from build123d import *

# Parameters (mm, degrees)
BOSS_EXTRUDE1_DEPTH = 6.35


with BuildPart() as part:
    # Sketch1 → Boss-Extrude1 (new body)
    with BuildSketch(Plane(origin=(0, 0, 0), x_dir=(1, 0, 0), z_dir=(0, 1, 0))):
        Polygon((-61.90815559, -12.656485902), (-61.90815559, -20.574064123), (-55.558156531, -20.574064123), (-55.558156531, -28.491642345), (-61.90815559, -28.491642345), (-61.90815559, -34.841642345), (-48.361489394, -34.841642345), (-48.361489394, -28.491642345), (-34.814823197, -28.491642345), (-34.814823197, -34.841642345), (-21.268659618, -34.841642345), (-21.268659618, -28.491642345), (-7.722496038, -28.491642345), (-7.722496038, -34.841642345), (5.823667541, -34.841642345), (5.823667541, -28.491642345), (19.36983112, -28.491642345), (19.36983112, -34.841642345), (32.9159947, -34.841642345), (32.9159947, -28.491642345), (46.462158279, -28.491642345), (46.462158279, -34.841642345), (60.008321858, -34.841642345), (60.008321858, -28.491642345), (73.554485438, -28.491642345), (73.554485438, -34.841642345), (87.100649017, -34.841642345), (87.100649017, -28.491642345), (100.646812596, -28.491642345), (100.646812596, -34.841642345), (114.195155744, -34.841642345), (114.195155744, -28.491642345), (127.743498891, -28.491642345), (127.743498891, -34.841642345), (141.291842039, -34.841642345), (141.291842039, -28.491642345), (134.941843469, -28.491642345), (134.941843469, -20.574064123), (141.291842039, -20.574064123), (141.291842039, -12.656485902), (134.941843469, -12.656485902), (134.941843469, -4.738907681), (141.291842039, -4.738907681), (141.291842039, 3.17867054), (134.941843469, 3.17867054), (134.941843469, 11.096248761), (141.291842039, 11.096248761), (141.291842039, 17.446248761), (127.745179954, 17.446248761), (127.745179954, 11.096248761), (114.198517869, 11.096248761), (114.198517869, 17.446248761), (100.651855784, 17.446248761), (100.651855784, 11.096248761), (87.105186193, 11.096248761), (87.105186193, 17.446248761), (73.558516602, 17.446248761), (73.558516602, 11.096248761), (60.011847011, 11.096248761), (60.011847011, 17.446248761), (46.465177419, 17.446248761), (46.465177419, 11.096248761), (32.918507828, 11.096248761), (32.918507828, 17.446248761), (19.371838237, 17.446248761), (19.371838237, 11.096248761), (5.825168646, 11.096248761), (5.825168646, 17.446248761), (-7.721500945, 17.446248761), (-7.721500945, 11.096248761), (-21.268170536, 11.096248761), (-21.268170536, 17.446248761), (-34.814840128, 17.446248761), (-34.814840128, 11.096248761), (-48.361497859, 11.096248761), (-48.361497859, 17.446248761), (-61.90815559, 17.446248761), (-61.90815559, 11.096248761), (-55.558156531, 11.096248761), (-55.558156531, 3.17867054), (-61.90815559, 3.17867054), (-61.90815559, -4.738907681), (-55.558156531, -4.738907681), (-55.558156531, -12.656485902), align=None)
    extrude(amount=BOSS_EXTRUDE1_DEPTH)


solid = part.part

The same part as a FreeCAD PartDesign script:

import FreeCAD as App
import Part
import Sketcher
Q = App.Units.Quantity

doc = App.newDocument("Part")
body = doc.addObject("PartDesign::Body", "Body")

sketch1 = doc.addObject("Sketcher::SketchObject", "Sketch")
body.addObject(sketch1)
sketch1.AttachmentSupport = (doc.XZ_Plane, [""])
sketch1.MapMode = "FlatFace"
sketch1.addGeometry([
    Part.LineSegment(App.Vector(-62, 13, 0), App.Vector(-62, 21, 0)),
    Part.LineSegment(App.Vector(-62, 21, 0), App.Vector(-56, 21, 0)),
    Part.LineSegment(App.Vector(-56, 21, 0), App.Vector(-56, 28, 0)),
    Part.LineSegment(App.Vector(-56, 28, 0), App.Vector(-62, 28, 0)),
    Part.LineSegment(App.Vector(-62, 28, 0), App.Vector(-62, 35, 0)),
    Part.LineSegment(App.Vector(-62, 35, 0), App.Vector(-48, 35, 0)),
    Part.LineSegment(App.Vector(-48, 35, 0), App.Vector(-48, 28, 0)),
    Part.LineSegment(App.Vector(-48, 28, 0), App.Vector(-35, 28, 0)),
    Part.LineSegment(App.Vector(-35, 28, 0), App.Vector(-35, 35, 0)),
    Part.LineSegment(App.Vector(-35, 35, 0), App.Vector(-21, 35, 0)),
    Part.LineSegment(App.Vector(-21, 35, 0), App.Vector(-21, 28, 0)),
    Part.LineSegment(App.Vector(-21, 28, 0), App.Vector(-8, 28, 0)),
    Part.LineSegment(App.Vector(-8, 28, 0), App.Vector(-8, 35, 0)),
    Part.LineSegment(App.Vector(-8, 35, 0), App.Vector(6, 35, 0)),
    Part.LineSegment(App.Vector(6, 35, 0), App.Vector(6, 28, 0)),
    Part.LineSegment(App.Vector(6, 28, 0), App.Vector(19, 28, 0)),
    Part.LineSegment(App.Vector(19, 28, 0), App.Vector(19, 35, 0)),
    Part.LineSegment(App.Vector(19, 35, 0), App.Vector(33, 35, 0)),
    Part.LineSegment(App.Vector(33, 35, 0), App.Vector(33, 28, 0)),
    Part.LineSegment(App.Vector(33, 28, 0), App.Vector(46, 28, 0)),
    Part.LineSegment(App.Vector(46, 28, 0), App.Vector(46, 35, 0)),
    Part.LineSegment(App.Vector(46, 35, 0), App.Vector(60, 35, 0)),
    Part.LineSegment(App.Vector(60, 35, 0), App.Vector(60, 28, 0)),
    Part.LineSegment(App.Vector(60, 28, 0), App.Vector(74, 28, 0)),
    Part.LineSegment(App.Vector(74, 28, 0), App.Vector(74, 35, 0)),
    Part.LineSegment(App.Vector(74, 35, 0), App.Vector(87, 35, 0)),
    Part.LineSegment(App.Vector(87, 35, 0), App.Vector(87, 28, 0)),
    Part.LineSegment(App.Vector(87, 28, 0), App.Vector(101, 28, 0)),
    Part.LineSegment(App.Vector(101, 28, 0), App.Vector(101, 35, 0)),
    Part.LineSegment(App.Vector(101, 35, 0), App.Vector(114, 35, 0)),
    Part.LineSegment(App.Vector(114, 35, 0), App.Vector(114, 28, 0)),
    Part.LineSegment(App.Vector(114, 28, 0), App.Vector(128, 28, 0)),
    Part.LineSegment(App.Vector(128, 28, 0), App.Vector(128, 35, 0)),
    Part.LineSegment(App.Vector(128, 35, 0), App.Vector(141, 35, 0)),
    Part.LineSegment(App.Vector(141, 35, 0), App.Vector(141, 28, 0)),
    Part.LineSegment(App.Vector(141, 28, 0), App.Vector(135, 28, 0)),
    Part.LineSegment(App.Vector(135, 28, 0), App.Vector(135, 21, 0)),
    Part.LineSegment(App.Vector(135, 21, 0), App.Vector(141, 21, 0)),
    Part.LineSegment(App.Vector(141, 21, 0), App.Vector(141, 13, 0)),
    Part.LineSegment(App.Vector(141, 13, 0), App.Vector(135, 13, 0)),
    Part.LineSegment(App.Vector(135, 13, 0), App.Vector(135, 5, 0)),
    Part.LineSegment(App.Vector(135, 5, 0), App.Vector(141, 5, 0)),
    Part.LineSegment(App.Vector(141, 5, 0), App.Vector(141, -3, 0)),
    Part.LineSegment(App.Vector(141, -3, 0), App.Vector(135, -3, 0)),
    Part.LineSegment(App.Vector(135, -3, 0), App.Vector(135, -11, 0)),
    Part.LineSegment(App.Vector(135, -11, 0), App.Vector(141, -11, 0)),
    Part.LineSegment(App.Vector(141, -11, 0), App.Vector(141, -17, 0)),
    Part.LineSegment(App.Vector(141, -17, 0), App.Vector(128, -17, 0)),
    Part.LineSegment(App.Vector(128, -17, 0), App.Vector(128, -11, 0)),
    Part.LineSegment(App.Vector(128, -11, 0), App.Vector(114, -11, 0)),
    Part.LineSegment(App.Vector(114, -11, 0), App.Vector(114, -17, 0)),
    Part.LineSegment(App.Vector(114, -17, 0), App.Vector(101, -17, 0)),
    Part.LineSegment(App.Vector(101, -17, 0), App.Vector(101, -11, 0)),
    Part.LineSegment(App.Vector(101, -11, 0), App.Vector(87, -11, 0)),
    Part.LineSegment(App.Vector(87, -11, 0), App.Vector(87, -17, 0)),
    Part.LineSegment(App.Vector(87, -17, 0), App.Vector(74, -17, 0)),
    Part.LineSegment(App.Vector(74, -17, 0), App.Vector(74, -11, 0)),
    Part.LineSegment(App.Vector(74, -11, 0), App.Vector(60, -11, 0)),
    Part.LineSegment(App.Vector(60, -11, 0), App.Vector(60, -17, 0)),
    Part.LineSegment(App.Vector(60, -17, 0), App.Vector(46, -17, 0)),
    Part.LineSegment(App.Vector(46, -17, 0), App.Vector(46, -11, 0)),
    Part.LineSegment(App.Vector(46, -11, 0), App.Vector(33, -11, 0)),
    Part.LineSegment(App.Vector(33, -11, 0), App.Vector(33, -17, 0)),
    Part.LineSegment(App.Vector(33, -17, 0), App.Vector(19, -17, 0)),
    Part.LineSegment(App.Vector(19, -17, 0), App.Vector(19, -11, 0)),
    Part.LineSegment(App.Vector(19, -11, 0), App.Vector(6, -11, 0)),
    Part.LineSegment(App.Vector(6, -11, 0), App.Vector(6, -17, 0)),
    Part.LineSegment(App.Vector(6, -17, 0), App.Vector(-8, -17, 0)),
    Part.LineSegment(App.Vector(-8, -17, 0), App.Vector(-8, -11, 0)),
    Part.LineSegment(App.Vector(-8, -11, 0), App.Vector(-21, -11, 0)),
    Part.LineSegment(App.Vector(-21, -11, 0), App.Vector(-21, -17, 0)),
    Part.LineSegment(App.Vector(-21, -17, 0), App.Vector(-35, -17, 0)),
    Part.LineSegment(App.Vector(-35, -17, 0), App.Vector(-35, -11, 0)),
    Part.LineSegment(App.Vector(-35, -11, 0), App.Vector(-48, -11, 0)),
    Part.LineSegment(App.Vector(-48, -11, 0), App.Vector(-48, -17, 0)),
    Part.LineSegment(App.Vector(-48, -17, 0), App.Vector(-62, -17, 0)),
    Part.LineSegment(App.Vector(-62, -17, 0), App.Vector(-62, -11, 0)),
    Part.LineSegment(App.Vector(-62, -11, 0), App.Vector(-56, -11, 0)),
    Part.LineSegment(App.Vector(-56, -11, 0), App.Vector(-56, -3, 0)),
    Part.LineSegment(App.Vector(-56, -3, 0), App.Vector(-62, -3, 0)),
    Part.LineSegment(App.Vector(-62, -3, 0), App.Vector(-62, 5, 0)),
    Part.LineSegment(App.Vector(-62, 5, 0), App.Vector(-56, 5, 0)),
    Part.LineSegment(App.Vector(-56, 5, 0), App.Vector(-56, 13, 0)),
    Part.LineSegment(App.Vector(-56, 13, 0), App.Vector(-62, 13, 0)),
], False)
sketch1.addConstraint([
    Sketcher.Constraint("Coincident", 0, 2, 1, 1),
    Sketcher.Constraint("Coincident", 1, 2, 2, 1),
    Sketcher.Constraint("Coincident", 2, 2, 3, 1),
    Sketcher.Constraint("Coincident", 3, 2, 4, 1),
    Sketcher.Constraint("Coincident", 4, 2, 5, 1),
    Sketcher.Constraint("Coincident", 5, 2, 6, 1),
    Sketcher.Constraint("Coincident", 6, 2, 7, 1),
    Sketcher.Constraint("Coincident", 7, 2, 8, 1),
    Sketcher.Constraint("Coincident", 8, 2, 9, 1),
    Sketcher.Constraint("Coincident", 9, 2, 10, 1),
    Sketcher.Constraint("Coincident", 10, 2, 11, 1),
    Sketcher.Constraint("Coincident", 11, 2, 12, 1),
    Sketcher.Constraint("Coincident", 12, 2, 13, 1),
    Sketcher.Constraint("Coincident", 13, 2, 14, 1),
    Sketcher.Constraint("Coincident", 14, 2, 15, 1),
    Sketcher.Constraint("Coincident", 15, 2, 16, 1),
    Sketcher.Constraint("Coincident", 16, 2, 17, 1),
    Sketcher.Constraint("Coincident", 17, 2, 18, 1),
    Sketcher.Constraint("Coincident", 18, 2, 19, 1),
    Sketcher.Constraint("Coincident", 19, 2, 20, 1),
    Sketcher.Constraint("Coincident", 20, 2, 21, 1),
    Sketcher.Constraint("Coincident", 21, 2, 22, 1),
    Sketcher.Constraint("Coincident", 22, 2, 23, 1),
    Sketcher.Constraint("Coincident", 23, 2, 24, 1),
    Sketcher.Constraint("Coincident", 24, 2, 25, 1),
    Sketcher.Constraint("Coincident", 25, 2, 26, 1),
    Sketcher.Constraint("Coincident", 26, 2, 27, 1),
    Sketcher.Constraint("Coincident", 27, 2, 28, 1),
    Sketcher.Constraint("Coincident", 28, 2, 29, 1),
    Sketcher.Constraint("Coincident", 29, 2, 30, 1),
    Sketcher.Constraint("Coincident", 30, 2, 31, 1),
    Sketcher.Constraint("Coincident", 31, 2, 32, 1),
    Sketcher.Constraint("Coincident", 32, 2, 33, 1),
    Sketcher.Constraint("Coincident", 33, 2, 34, 1),
    Sketcher.Constraint("Coincident", 34, 2, 35, 1),
    Sketcher.Constraint("Coincident", 35, 2, 36, 1),
    Sketcher.Constraint("Coincident", 36, 2, 37, 1),
    Sketcher.Constraint("Coincident", 37, 2, 38, 1),
    Sketcher.Constraint("Coincident", 38, 2, 39, 1),
    Sketcher.Constraint("Coincident", 39, 2, 40, 1),
    Sketcher.Constraint("Coincident", 40, 2, 41, 1),
    Sketcher.Constraint("Coincident", 41, 2, 42, 1),
    Sketcher.Constraint("Coincident", 42, 2, 43, 1),
    Sketcher.Constraint("Coincident", 43, 2, 44, 1),
    Sketcher.Constraint("Coincident", 44, 2, 45, 1),
    Sketcher.Constraint("Coincident", 45, 2, 46, 1),
    Sketcher.Constraint("Coincident", 46, 2, 47, 1),
    Sketcher.Constraint("Coincident", 47, 2, 48, 1),
    Sketcher.Constraint("Coincident", 48, 2, 49, 1),
    Sketcher.Constraint("Coincident", 49, 2, 50, 1),
    Sketcher.Constraint("Coincident", 50, 2, 51, 1),
    Sketcher.Constraint("Coincident", 51, 2, 52, 1),
    Sketcher.Constraint("Coincident", 52, 2, 53, 1),
    Sketcher.Constraint("Coincident", 53, 2, 54, 1),
    Sketcher.Constraint("Coincident", 54, 2, 55, 1),
    Sketcher.Constraint("Coincident", 55, 2, 56, 1),
    Sketcher.Constraint("Coincident", 56, 2, 57, 1),
    Sketcher.Constraint("Coincident", 57, 2, 58, 1),
    Sketcher.Constraint("Coincident", 58, 2, 59, 1),
    Sketcher.Constraint("Coincident", 59, 2, 60, 1),
    Sketcher.Constraint("Coincident", 60, 2, 61, 1),
    Sketcher.Constraint("Coincident", 61, 2, 62, 1),
    Sketcher.Constraint("Coincident", 62, 2, 63, 1),
    Sketcher.Constraint("Coincident", 63, 2, 64, 1),
    Sketcher.Constraint("Coincident", 64, 2, 65, 1),
    Sketcher.Constraint("Coincident", 65, 2, 66, 1),
    Sketcher.Constraint("Coincident", 66, 2, 67, 1),
    Sketcher.Constraint("Coincident", 67, 2, 68, 1),
    Sketcher.Constraint("Coincident", 68, 2, 69, 1),
    Sketcher.Constraint("Coincident", 69, 2, 70, 1),
    Sketcher.Constraint("Coincident", 70, 2, 71, 1),
    Sketcher.Constraint("Coincident", 71, 2, 72, 1),
    Sketcher.Constraint("Coincident", 72, 2, 73, 1),
    Sketcher.Constraint("Coincident", 73, 2, 74, 1),
    Sketcher.Constraint("Coincident", 74, 2, 75, 1),
    Sketcher.Constraint("Coincident", 75, 2, 76, 1),
    Sketcher.Constraint("Coincident", 76, 2, 77, 1),
    Sketcher.Constraint("Coincident", 77, 2, 78, 1),
    Sketcher.Constraint("Coincident", 78, 2, 79, 1),
    Sketcher.Constraint("Coincident", 79, 2, 80, 1),
    Sketcher.Constraint("Coincident", 80, 2, 81, 1),
    Sketcher.Constraint("Coincident", 81, 2, 82, 1),
    Sketcher.Constraint("Coincident", 82, 2, 83, 1),
    Sketcher.Constraint("Coincident", 83, 2, 0, 1),
    Sketcher.Constraint("Vertical", 0),
    Sketcher.Constraint("Horizontal", 1),
    Sketcher.Constraint("Vertical", 2),
    Sketcher.Constraint("Horizontal", 3),
    Sketcher.Constraint("Vertical", 4),
    Sketcher.Constraint("Horizontal", 5),
    Sketcher.Constraint("Vertical", 6),
    Sketcher.Constraint("Horizontal", 7),
    Sketcher.Constraint("Vertical", 8),
    Sketcher.Constraint("Horizontal", 9),
    Sketcher.Constraint("Vertical", 10),
    Sketcher.Constraint("Horizontal", 11),
    Sketcher.Constraint("Vertical", 12),
    Sketcher.Constraint("Horizontal", 13),
    Sketcher.Constraint("Vertical", 14),
    Sketcher.Constraint("Horizontal", 15),
    Sketcher.Constraint("Vertical", 16),
    Sketcher.Constraint("Horizontal", 17),
    Sketcher.Constraint("Vertical", 18),
    Sketcher.Constraint("Horizontal", 19),
    Sketcher.Constraint("Vertical", 20),
    Sketcher.Constraint("Horizontal", 21),
    Sketcher.Constraint("Vertical", 22),
    Sketcher.Constraint("Horizontal", 23),
    Sketcher.Constraint("Vertical", 24),
    Sketcher.Constraint("Horizontal", 25),
    Sketcher.Constraint("Vertical", 26),
    Sketcher.Constraint("Horizontal", 27),
    Sketcher.Constraint("Vertical", 28),
    Sketcher.Constraint("Horizontal", 29),
    Sketcher.Constraint("Vertical", 30),
    Sketcher.Constraint("Horizontal", 31),
    Sketcher.Constraint("Vertical", 32),
    Sketcher.Constraint("Horizontal", 33),
    Sketcher.Constraint("Vertical", 34),
    Sketcher.Constraint("Horizontal", 35),
    Sketcher.Constraint("Vertical", 36),
    Sketcher.Constraint("Horizontal", 37),
    Sketcher.Constraint("Vertical", 38),
    Sketcher.Constraint("Horizontal", 39),
    Sketcher.Constraint("Vertical", 40),
    Sketcher.Constraint("Horizontal", 41),
    Sketcher.Constraint("Vertical", 42),
    Sketcher.Constraint("Horizontal", 43),
    Sketcher.Constraint("Vertical", 44),
    Sketcher.Constraint("Horizontal", 45),
    Sketcher.Constraint("Vertical", 46),
    Sketcher.Constraint("Horizontal", 47),
    Sketcher.Constraint("Vertical", 48),
    Sketcher.Constraint("Horizontal", 49),
    Sketcher.Constraint("Vertical", 50),
    Sketcher.Constraint("Horizontal", 51),
    Sketcher.Constraint("Vertical", 52),
    Sketcher.Constraint("Horizontal", 53),
    Sketcher.Constraint("Vertical", 54),
    Sketcher.Constraint("Horizontal", 55),
    Sketcher.Constraint("Vertical", 56),
    Sketcher.Constraint("Horizontal", 57),
    Sketcher.Constraint("Vertical", 58),
    Sketcher.Constraint("Horizontal", 59),
    Sketcher.Constraint("Vertical", 60),
    Sketcher.Constraint("Horizontal", 61),
    Sketcher.Constraint("Vertical", 62),
    Sketcher.Constraint("Horizontal", 63),
    Sketcher.Constraint("Vertical", 64),
    Sketcher.Constraint("Horizontal", 65),
    Sketcher.Constraint("Vertical", 66),
    Sketcher.Constraint("Horizontal", 67),
    Sketcher.Constraint("Vertical", 68),
    Sketcher.Constraint("Horizontal", 69),
    Sketcher.Constraint("Vertical", 70),
    Sketcher.Constraint("Horizontal", 71),
    Sketcher.Constraint("Vertical", 72),
    Sketcher.Constraint("Horizontal", 73),
    Sketcher.Constraint("Vertical", 74),
    Sketcher.Constraint("Horizontal", 75),
    Sketcher.Constraint("Vertical", 76),
    Sketcher.Constraint("Horizontal", 77),
    Sketcher.Constraint("Vertical", 78),
    Sketcher.Constraint("Horizontal", 79),
    Sketcher.Constraint("Vertical", 80),
    Sketcher.Constraint("Horizontal", 81),
    Sketcher.Constraint("Vertical", 82),
    Sketcher.Constraint("Horizontal", 83),
    Sketcher.Constraint("Horizontal", 3, 2, 6, 2),
    Sketcher.Constraint("Horizontal", 5, 2, 8, 2),
    Sketcher.Constraint("Horizontal", 7, 2, 10, 2),
    Sketcher.Constraint("Horizontal", 9, 2, 12, 2),
    Sketcher.Constraint("Horizontal", 11, 2, 14, 2),
    Sketcher.Constraint("Horizontal", 13, 2, 16, 2),
    Sketcher.Constraint("Horizontal", 15, 2, 18, 2),
    Sketcher.Constraint("Horizontal", 17, 2, 20, 2),
    Sketcher.Constraint("Horizontal", 19, 2, 22, 2),
    Sketcher.Constraint("Horizontal", 21, 2, 24, 2),
    Sketcher.Constraint("Horizontal", 23, 2, 26, 2),
    Sketcher.Constraint("Horizontal", 25, 2, 28, 2),
    Sketcher.Constraint("Horizontal", 27, 2, 30, 2),
    Sketcher.Constraint("Horizontal", 29, 2, 32, 2),
    Sketcher.Constraint("Horizontal", 31, 2, 34, 2),
    Sketcher.Constraint("Horizontal", 1, 2, 36, 2),
    Sketcher.Constraint("Horizontal", 45, 2, 48, 2),
    Sketcher.Constraint("Horizontal", 47, 2, 50, 2),
    Sketcher.Constraint("Horizontal", 49, 2, 52, 2),
    Sketcher.Constraint("Horizontal", 51, 2, 54, 2),
    Sketcher.Constraint("Horizontal", 53, 2, 56, 2),
    Sketcher.Constraint("Horizontal", 55, 2, 58, 2),
    Sketcher.Constraint("Horizontal", 57, 2, 60, 2),
    Sketcher.Constraint("Horizontal", 59, 2, 62, 2),
    Sketcher.Constraint("Horizontal", 61, 2, 64, 2),
    Sketcher.Constraint("Horizontal", 63, 2, 66, 2),
    Sketcher.Constraint("Horizontal", 65, 2, 68, 2),
    Sketcher.Constraint("Horizontal", 67, 2, 70, 2),
    Sketcher.Constraint("Horizontal", 69, 2, 72, 2),
    Sketcher.Constraint("Horizontal", 71, 2, 74, 2),
    Sketcher.Constraint("Horizontal", 73, 2, 76, 2),
    Sketcher.Constraint("Horizontal", 43, 2, 78, 2),
    Sketcher.Constraint("Horizontal", 41, 2, 80, 2),
    Sketcher.Constraint("Horizontal", 39, 2, 82, 2),
    Sketcher.Constraint("Vertical", 0, 2, 3, 2),
    Sketcher.Constraint("Vertical", 34, 2, 37, 2),
    Sketcher.Constraint("Vertical", 36, 2, 39, 2),
    Sketcher.Constraint("Vertical", 38, 2, 41, 2),
    Sketcher.Constraint("Vertical", 40, 2, 43, 2),
    Sketcher.Constraint("Vertical", 42, 2, 45, 2),
    Sketcher.Constraint("Vertical", 4, 2, 75, 2),
    Sketcher.Constraint("Vertical", 2, 2, 77, 2),
    Sketcher.Constraint("Vertical", 76, 2, 79, 2),
    Sketcher.Constraint("Vertical", 78, 2, 81, 2),
    Sketcher.Constraint("Equal", 5, 7),
    Sketcher.Constraint("Equal", 9, 11),
    Sketcher.Constraint("Equal", 11, 13),
    Sketcher.Constraint("Equal", 13, 15),
    Sketcher.Constraint("Equal", 15, 17),
    Sketcher.Constraint("Equal", 17, 19),
    Sketcher.Constraint("Equal", 19, 21),
    Sketcher.Constraint("Equal", 21, 23),
    Sketcher.Constraint("Equal", 23, 25),
    Sketcher.Constraint("Equal", 25, 27),
    Sketcher.Constraint("Equal", 29, 31),
    Sketcher.Constraint("Equal", 31, 33),
    Sketcher.Constraint("Equal", 3, 35),
    Sketcher.Constraint("Equal", 47, 49),
    Sketcher.Constraint("Equal", 49, 51),
    Sketcher.Constraint("Equal", 53, 55),
    Sketcher.Constraint("Equal", 55, 57),
    Sketcher.Constraint("Equal", 57, 59),
    Sketcher.Constraint("Equal", 59, 61),
    Sketcher.Constraint("Equal", 61, 63),
    Sketcher.Constraint("Equal", 63, 65),
    Sketcher.Constraint("Equal", 65, 67),
    Sketcher.Constraint("Equal", 67, 69),
    Sketcher.Constraint("Equal", 69, 71),
    Sketcher.Constraint("Equal", 73, 75),
    Sketcher.Constraint("Equal", 0, 2),
    Sketcher.Constraint("Equal", 83, 4),
    Sketcher.Constraint("Equal", 38, 40),
    Sketcher.Constraint("Equal", 40, 42),
    Sketcher.Constraint("Equal", 42, 44),
    Sketcher.Constraint("Equal", 34, 46),
    Sketcher.Constraint("DistanceX", 1, 1, 1, 2, Q("0.25 in")),
    Sketcher.Constraint("DistanceX", 53, 2, 53, 1, Q("13.54667 mm")),
    Sketcher.Constraint("DistanceY", 0, 1, 0, 2, Q("7.917578 mm")),
    Sketcher.Constraint("DistanceX", -1, 1, 31, 2, Q("127.743499 mm")),
    Sketcher.Constraint("DistanceX", 67, 2, -1, 1, Q("7.721501 mm")),
    Sketcher.Constraint("DistanceX", 5, 1, 5, 2, Q("13.546666 mm")),
    Sketcher.Constraint("DistanceX", 9, 1, 9, 2, Q("13.546164 mm")),
    Sketcher.Constraint("DistanceX", 29, 1, 29, 2, Q("13.548343 mm")),
    Sketcher.Constraint("DistanceY", 42, 2, -1, 1, Q("3.178671 mm")),
])
pad1 = doc.addObject("PartDesign::Pad", "Pad")
body.addObject(pad1)
pad1.Profile = sketch1
pad1.Length = Q("0.25 in")
pad1.Reversed = True

doc.recompute()
